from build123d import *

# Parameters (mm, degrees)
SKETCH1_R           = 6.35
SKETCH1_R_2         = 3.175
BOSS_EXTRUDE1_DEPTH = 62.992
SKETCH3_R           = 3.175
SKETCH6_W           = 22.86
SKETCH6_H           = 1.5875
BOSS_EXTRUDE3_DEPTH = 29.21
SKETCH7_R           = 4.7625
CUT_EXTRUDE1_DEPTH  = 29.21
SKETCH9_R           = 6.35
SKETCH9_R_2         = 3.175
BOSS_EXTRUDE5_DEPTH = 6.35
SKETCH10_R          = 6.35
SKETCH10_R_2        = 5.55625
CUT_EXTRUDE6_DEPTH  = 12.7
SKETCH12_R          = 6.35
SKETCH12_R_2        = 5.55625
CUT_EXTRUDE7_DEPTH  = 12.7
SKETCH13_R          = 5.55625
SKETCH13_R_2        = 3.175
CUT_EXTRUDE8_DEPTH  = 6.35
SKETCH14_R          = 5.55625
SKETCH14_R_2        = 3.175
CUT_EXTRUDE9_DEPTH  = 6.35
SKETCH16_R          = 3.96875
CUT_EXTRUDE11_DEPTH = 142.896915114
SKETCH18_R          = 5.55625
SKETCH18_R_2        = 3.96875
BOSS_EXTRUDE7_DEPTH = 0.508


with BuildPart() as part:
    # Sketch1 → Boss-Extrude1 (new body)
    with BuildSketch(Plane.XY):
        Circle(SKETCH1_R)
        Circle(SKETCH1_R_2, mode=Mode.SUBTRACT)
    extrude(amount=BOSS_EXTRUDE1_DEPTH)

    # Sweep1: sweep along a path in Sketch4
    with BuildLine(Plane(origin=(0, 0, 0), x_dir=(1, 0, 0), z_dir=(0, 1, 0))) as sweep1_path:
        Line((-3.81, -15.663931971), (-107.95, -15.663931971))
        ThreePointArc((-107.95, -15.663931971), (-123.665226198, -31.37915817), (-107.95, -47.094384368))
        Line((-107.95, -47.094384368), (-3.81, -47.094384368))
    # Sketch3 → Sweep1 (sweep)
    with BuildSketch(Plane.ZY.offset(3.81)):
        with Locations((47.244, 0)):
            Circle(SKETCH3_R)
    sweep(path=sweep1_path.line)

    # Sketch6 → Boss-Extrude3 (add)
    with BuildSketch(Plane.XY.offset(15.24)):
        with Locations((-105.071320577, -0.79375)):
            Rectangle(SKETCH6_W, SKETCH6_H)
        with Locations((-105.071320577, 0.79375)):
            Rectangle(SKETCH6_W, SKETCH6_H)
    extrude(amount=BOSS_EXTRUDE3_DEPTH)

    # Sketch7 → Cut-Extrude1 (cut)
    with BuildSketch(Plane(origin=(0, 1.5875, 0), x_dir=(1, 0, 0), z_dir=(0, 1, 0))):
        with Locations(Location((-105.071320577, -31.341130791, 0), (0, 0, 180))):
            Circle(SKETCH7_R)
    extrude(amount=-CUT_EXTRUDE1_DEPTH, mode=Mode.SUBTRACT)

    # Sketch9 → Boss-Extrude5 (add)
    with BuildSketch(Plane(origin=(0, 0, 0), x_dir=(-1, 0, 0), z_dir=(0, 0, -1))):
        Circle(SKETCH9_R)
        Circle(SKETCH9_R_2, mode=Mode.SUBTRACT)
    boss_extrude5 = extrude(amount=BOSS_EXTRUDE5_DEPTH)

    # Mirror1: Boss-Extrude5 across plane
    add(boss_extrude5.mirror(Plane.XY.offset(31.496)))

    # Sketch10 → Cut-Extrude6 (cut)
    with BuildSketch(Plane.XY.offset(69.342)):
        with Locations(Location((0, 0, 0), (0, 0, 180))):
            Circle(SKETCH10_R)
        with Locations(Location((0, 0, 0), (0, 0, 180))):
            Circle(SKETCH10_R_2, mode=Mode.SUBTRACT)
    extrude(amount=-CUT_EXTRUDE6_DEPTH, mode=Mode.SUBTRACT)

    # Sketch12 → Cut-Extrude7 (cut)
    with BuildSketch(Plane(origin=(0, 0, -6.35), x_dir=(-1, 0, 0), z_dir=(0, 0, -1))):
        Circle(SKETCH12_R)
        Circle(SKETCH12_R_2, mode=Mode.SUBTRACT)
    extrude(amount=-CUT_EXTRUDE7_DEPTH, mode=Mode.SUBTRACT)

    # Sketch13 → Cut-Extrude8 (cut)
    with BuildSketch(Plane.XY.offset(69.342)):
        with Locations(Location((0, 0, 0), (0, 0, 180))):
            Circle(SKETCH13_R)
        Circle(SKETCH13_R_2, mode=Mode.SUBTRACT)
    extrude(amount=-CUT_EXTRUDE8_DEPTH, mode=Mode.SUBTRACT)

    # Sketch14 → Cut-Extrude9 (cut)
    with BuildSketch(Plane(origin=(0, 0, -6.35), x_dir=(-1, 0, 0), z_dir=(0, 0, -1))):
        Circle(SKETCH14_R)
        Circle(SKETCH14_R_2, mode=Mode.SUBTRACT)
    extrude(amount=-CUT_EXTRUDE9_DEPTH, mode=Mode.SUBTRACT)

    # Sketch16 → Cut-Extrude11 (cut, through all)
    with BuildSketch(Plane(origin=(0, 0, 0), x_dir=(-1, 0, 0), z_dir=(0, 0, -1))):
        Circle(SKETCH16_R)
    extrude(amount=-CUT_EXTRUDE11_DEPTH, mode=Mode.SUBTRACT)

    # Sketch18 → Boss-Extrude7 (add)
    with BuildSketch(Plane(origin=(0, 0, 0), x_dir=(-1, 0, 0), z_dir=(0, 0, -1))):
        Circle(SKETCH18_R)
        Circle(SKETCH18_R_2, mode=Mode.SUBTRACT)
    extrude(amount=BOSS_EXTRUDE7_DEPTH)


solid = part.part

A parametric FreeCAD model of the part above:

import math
import FreeCAD as App
import Part
import Sketcher
from FreeCAD import Vector
Q = App.Units.Quantity


def add_polygon(sketch, points):
    """Adds a closed chain of lines whose ends are joined by coincident constraints."""
    first, n = sketch.GeometryCount, len(points)
    for a, b in zip(points, points[1:] + points[:1]):
        sketch.addGeometry(Part.LineSegment(App.Vector(*a, 0), App.Vector(*b, 0)), False)
    for i in range(n):
        sketch.addConstraint(Sketcher.Constraint("Coincident", first + i, 2, first + (i + 1) % n, 1))

doc = App.newDocument("Part")
body = doc.addObject("PartDesign::Body", "Body")

# Sketch on XY plane
sketch1 = body.newObject("Sketcher::SketchObject", "Sketch")
sketch1.AttachmentSupport = (doc.getObject("XY_Plane"), [""])
sketch1.MapMode = "FlatFace"
sketch1.addGeometry(Part.Circle(Vector(0, 0, 0), Vector(0, 0, 1), 6.3), False)
sketch1.addGeometry(Part.Circle(Vector(0, 0, 0), Vector(0, 0, 1), 3.2), False)
sketch1.addConstraint(Sketcher.Constraint("Coincident", 0, 3, -1, 1))
sketch1.addConstraint(Sketcher.Constraint("Coincident", 1, 3, -1, 1))
sketch1.addConstraint(Sketcher.Constraint("Diameter", 0, Q("0.5 in")))
sketch1.addConstraint(Sketcher.Constraint("Diameter", 1, Q("0.25 in")))
pad1 = body.newObject("PartDesign::Pad", "Pad")
pad1.Profile = sketch1
pad1.Length = Q("2.48 in")

# Sketch on YZ plane
sketch2 = body.newObject("Sketcher::SketchObject", "Sketch001")
sketch2.AttachmentSupport = (doc.getObject("YZ_Plane"), [""])
sketch2.MapMode = "FlatFace"
sketch2.AttachmentOffset = App.Placement(Vector(0, 0, -0.15 * 25.4), App.Rotation())
sketch2.addGeometry(Part.Circle(Vector(0, 47.2, 0), Vector(0, 0, 1), 3.2), False)
sketch2.addConstraint(Sketcher.Constraint("PointOnObject", 0, 3, -2))
sketch2.addConstraint(Sketcher.Constraint("Diameter", 0, Q("0.25 in")))
sketch2.addConstraint(Sketcher.Constraint("DistanceY", -1, 1, 0, 3, Q("1.86 in")))

# Sketch on XZ plane
sketch3 = body.newObject("Sketcher::SketchObject", "Sketch002")
sketch3.AttachmentSupport = (doc.getObject("XZ_Plane"), [""])
sketch3.MapMode = "FlatFace"
sketch3.addGeometry(Part.LineSegment(Vector(-4, 16, 0), Vector(-108, 16, 0)), False)
sketch3.addGeometry(Part.ArcOfCircle(Part.Circle(Vector(-108, 31, 0), Vector(0, 0, 1), 16), math.radians(90), math.radians(270)), False)
sketch3.addGeometry(Part.LineSegment(Vector(-108, 47, 0), Vector(-4, 47, 0)), False)
sketch3.addConstraint(Sketcher.Constraint("Tangent", 0, 2, 1, 2))
sketch3.addConstraint(Sketcher.Constraint("Tangent", 1, 1, 2, 1))
sketch3.addConstraint(Sketcher.Constraint("Horizontal", 0))
sketch3.addConstraint(Sketcher.Constraint("Horizontal", 2))
sketch3.addConstraint(Sketcher.Constraint("Vertical", 0, 1, 2, 2))
sketch3.addConstraint(Sketcher.Constraint("DistanceX", 0, 2, 0, 1, Q("4.1 in")))
sketch3.addConstraint(Sketcher.Constraint("DistanceX", 1, 3, -1, 1, Q("4.25 in")))
sketch3.addConstraint(Sketcher.Constraint("DistanceY", -1, 1, 1, 3, Q("1.2353999 in")))
sketch3.addConstraint(Sketcher.Constraint("Radius", 1, Q("15.715226 mm")))
doc.recompute()

additivepipe = body.newObject("PartDesign::AdditivePipe", "AdditivePipe")
additivepipe.Profile = sketch2
additivepipe.Spine = (sketch3, ["Edge1", "Edge2", "Edge3"])

# Sketch on XY plane
sketch4 = body.newObject("Sketcher::SketchObject", "Sketch003")
sketch4.AttachmentSupport = (doc.getObject("XY_Plane"), [""])
sketch4.MapMode = "FlatFace"
sketch4.AttachmentOffset = App.Placement(Vector(0, 0, 0.6 * 25.4), App.Rotation())
add_polygon(sketch4, [(-116.5, -1.6), (-93.6, -1.6), (-93.6, 1.6), (-116.5, 1.6)])  # lines 0-3
sketch4.addConstraint(Sketcher.Constraint("Horizontal", 0))
sketch4.addConstraint(Sketcher.Constraint("Vertical", 1))
sketch4.addConstraint(Sketcher.Constraint("Horizontal", 2))
sketch4.addConstraint(Sketcher.Constraint("Vertical", 3))
sketch4.addConstraint(Sketcher.Constraint("DistanceX", 0, 1, 0, 2, Q("0.9 in")))
sketch4.addConstraint(Sketcher.Constraint("DistanceY", 1, 1, 1, 2, Q("0.125 in")))
sketch4.addConstraint(Sketcher.Constraint("DistanceY", 0, 2, -1, 1, Q("0.0625 in")))
sketch4.addConstraint(Sketcher.Constraint("DistanceX", 0, 2, -1, 1, Q("93.641321 mm")))
pad2 = body.newObject("PartDesign::Pad", "Pad001")
pad2.Profile = sketch4
pad2.Length = Q("1.15 in")

# Sketch on XZ plane
sketch5 = body.newObject("Sketcher::SketchObject", "Sketch004")
sketch5.AttachmentSupport = (doc.getObject("XZ_Plane"), [""])
sketch5.MapMode = "FlatFace"
sketch5.AttachmentOffset = App.Placement(Vector(0, 0, -0.0625 * 25.4), App.Rotation())
sketch5.addGeometry(Part.Circle(Vector(-105.1, 31.3, 0), Vector(0, 0, 1), 4.8), False)
sketch5.addConstraint(Sketcher.Constraint("Diameter", 0, Q("0.375 in")))
sketch5.addConstraint(Sketcher.Constraint("DistanceX", 0, 3, -1, 1, Q("105.071321 mm")))
sketch5.addConstraint(Sketcher.Constraint("DistanceY", -1, 1, 0, 3, Q("31.341131 mm")))
pocket1 = body.newObject("PartDesign::Pocket", "Pocket")
pocket1.Profile = sketch5
pocket1.Length = Q("1.15 in")
pocket1.Reversed = True

# Sketch on XY plane
sketch6 = body.newObject("Sketcher::SketchObject", "Sketch005")
sketch6.AttachmentSupport = (doc.getObject("XY_Plane"), [""])
sketch6.MapMode = "FlatFace"
sketch6.addGeometry(Part.Circle(Vector(0, 0, 0), Vector(0, 0, 1), 6.3), False)
sketch6.addGeometry(Part.Circle(Vector(0, 0, 0), Vector(0, 0, 1), 3.2), False)
sketch6.addConstraint(Sketcher.Constraint("Coincident", 0, 3, -1, 1))
sketch6.addConstraint(Sketcher.Constraint("Coincident", 1, 3, -1, 1))
sketch6.addConstraint(Sketcher.Constraint("Diameter", 0, Q("0.5 in")))
sketch6.addConstraint(Sketcher.Constraint("Diameter", 1, Q("0.25 in")))
pad3 = body.newObject("PartDesign::Pad", "Pad002")
pad3.Profile = sketch6
pad3.Length = Q("0.25 in")
pad3.Reversed = True
doc.recompute()

datumplane = body.newObject("PartDesign::Plane", "DatumPlane")
datumplane.AttachmentSupport = (doc.getObject("XY_Plane"), [""])
datumplane.MapMode = "FlatFace"
datumplane.AttachmentOffset = App.Placement(Vector(0, 0, 1.24 * 25.4), App.Rotation())
mirrored = body.newObject("PartDesign::Mirrored", "Mirrored")
mirrored.Originals = [pad3]
mirrored.MirrorPlane = (datumplane, [""])
body.Tip = mirrored

# Sketch on XY plane
sketch7 = body.newObject("Sketcher::SketchObject", "Sketch006")
sketch7.AttachmentSupport = (doc.getObject("XY_Plane"), [""])
sketch7.MapMode = "FlatFace"
sketch7.AttachmentOffset = App.Placement(Vector(0, 0, 2.73 * 25.4), App.Rotation())
sketch7.addGeometry(Part.Circle(Vector(0, 0, 0), Vector(0, 0, 1), 6), False)
sketch7.addGeometry(Part.Circle(Vector(0, 0, 0), Vector(0, 0, 1), 6), False)
sketch7.addConstraint(Sketcher.Constraint("Coincident", 0, 3, -1, 1))
sketch7.addConstraint(Sketcher.Constraint("Coincident", 1, 3, -1, 1))
sketch7.addConstraint(Sketcher.Constraint("Diameter", 0, Q("0.5 in")))
sketch7.addConstraint(Sketcher.Constraint("Diameter", 1, Q("0.4375 in")))
pocket2 = body.newObject("PartDesign::Pocket", "Pocket001")
pocket2.Profile = sketch7
pocket2.Length = Q("0.5 in")

# Sketch on XY plane
sketch8 = body.newObject("Sketcher::SketchObject", "Sketch007")
sketch8.AttachmentSupport = (doc.getObject("XY_Plane"), [""])
sketch8.MapMode = "FlatFace"
sketch8.AttachmentOffset = App.Placement(Vector(0, 0, -0.25 * 25.4), App.Rotation())
sketch8.addGeometry(Part.Circle(Vector(0, 0, 0), Vector(0, 0, 1), 6), False)
sketch8.addGeometry(Part.Circle(Vector(0, 0, 0), Vector(0, 0, 1), 6), False)
sketch8.addConstraint(Sketcher.Constraint("Coincident", 0, 3, -1, 1))
sketch8.addConstraint(Sketcher.Constraint("Coincident", 1, 3, -1, 1))
sketch8.addConstraint(Sketcher.Constraint("Diameter", 0, Q("0.5 in")))
sketch8.addConstraint(Sketcher.Constraint("Diameter", 1, Q("0.4375 in")))
pocket3 = body.newObject("PartDesign::Pocket", "Pocket002")
pocket3.Profile = sketch8
pocket3.Length = Q("0.5 in")
pocket3.Reversed = True

# Sketch on XY plane
sketch9 = body.newObject("Sketcher::SketchObject", "Sketch008")
sketch9.AttachmentSupport = (doc.getObject("XY_Plane"), [""])
sketch9.MapMode = "FlatFace"
sketch9.AttachmentOffset = App.Placement(Vector(0, 0, 2.73 * 25.4), App.Rotation())
sketch9.addGeometry(Part.Circle(Vector(0, 0, 0), Vector(0, 0, 1), 5.6), False)
sketch9.addGeometry(Part.Circle(Vector(0, 0, 0), Vector(0, 0, 1), 3.2), False)
sketch9.addConstraint(Sketcher.Constraint("Coincident", 0, 3, -1, 1))
sketch9.addConstraint(Sketcher.Constraint("Coincident", 1, 3, -1, 1))
sketch9.addConstraint(Sketcher.Constraint("Diameter", 1, Q("0.25 in")))
sketch9.addConstraint(Sketcher.Constraint("Diameter", 0, Q("0.4375 in")))
pocket4 = body.newObject("PartDesign::Pocket", "Pocket003")
pocket4.Profile = sketch9
pocket4.Length = Q("0.25 in")

# Sketch on XY plane
sketch10 = body.newObject("Sketcher::SketchObject", "Sketch009")
sketch10.AttachmentSupport = (doc.getObject("XY_Plane"), [""])
sketch10.MapMode = "FlatFace"
sketch10.AttachmentOffset = App.Placement(Vector(0, 0, -0.25 * 25.4), App.Rotation())
sketch10.addGeometry(Part.Circle(Vector(0, 0, 0), Vector(0, 0, 1), 5.6), False)
sketch10.addGeometry(Part.Circle(Vector(0, 0, 0), Vector(0, 0, 1), 3.2), False)
sketch10.addConstraint(Sketcher.Constraint("Coincident", 0, 3, -1, 1))
sketch10.addConstraint(Sketcher.Constraint("Coincident", 1, 3, -1, 1))
sketch10.addConstraint(Sketcher.Constraint("Diameter", 1, Q("0.25 in")))
sketch10.addConstraint(Sketcher.Constraint("Diameter", 0, Q("0.4375 in")))
pocket5 = body.newObject("PartDesign::Pocket", "Pocket004")
pocket5.Profile = sketch10
pocket5.Length = Q("0.25 in")
pocket5.Reversed = True

# Sketch on XY plane
sketch11 = body.newObject("Sketcher::SketchObject", "Sketch010")
sketch11.AttachmentSupport = (doc.getObject("XY_Plane"), [""])
sketch11.MapMode = "FlatFace"
sketch11.addGeometry(Part.Circle(Vector(0, 0, 0), Vector(0, 0, 1), 4), False)
sketch11.addConstraint(Sketcher.Constraint("Coincident", 0, 3, -1, 1))
sketch11.addConstraint(Sketcher.Constraint("Diameter", 0, Q("0.3125 in")))
pocket6 = body.newObject("PartDesign::Pocket", "Pocket005")
pocket6.Profile = sketch11
pocket6.Type = "ThroughAll"
pocket6.Reversed = True

# Sketch on XY plane
sketch12 = body.newObject("Sketcher::SketchObject", "Sketch011")
sketch12.AttachmentSupport = (doc.getObject("XY_Plane"), [""])
sketch12.MapMode = "FlatFace"
sketch12.addGeometry(Part.Circle(Vector(0, 0, 0), Vector(0, 0, 1), 5.6), False)
sketch12.addGeometry(Part.Circle(Vector(0, 0, 0), Vector(0, 0, 1), 4), False)
sketch12.addConstraint(Sketcher.Constraint("Coincident", 0, 3, -1, 1))
sketch12.addConstraint(Sketcher.Constraint("Coincident", 1, 3, -1, 1))
sketch12.addConstraint(Sketcher.Constraint("Diameter", 0, Q("0.4375 in")))
sketch12.addConstraint(Sketcher.Constraint("Diameter", 1, Q("0.3125 in")))
pad4 = body.newObject("PartDesign::Pad", "Pad003")
pad4.Profile = sketch12
pad4.Length = Q("0.02 in")
pad4.Reversed = True

doc.recompute()
